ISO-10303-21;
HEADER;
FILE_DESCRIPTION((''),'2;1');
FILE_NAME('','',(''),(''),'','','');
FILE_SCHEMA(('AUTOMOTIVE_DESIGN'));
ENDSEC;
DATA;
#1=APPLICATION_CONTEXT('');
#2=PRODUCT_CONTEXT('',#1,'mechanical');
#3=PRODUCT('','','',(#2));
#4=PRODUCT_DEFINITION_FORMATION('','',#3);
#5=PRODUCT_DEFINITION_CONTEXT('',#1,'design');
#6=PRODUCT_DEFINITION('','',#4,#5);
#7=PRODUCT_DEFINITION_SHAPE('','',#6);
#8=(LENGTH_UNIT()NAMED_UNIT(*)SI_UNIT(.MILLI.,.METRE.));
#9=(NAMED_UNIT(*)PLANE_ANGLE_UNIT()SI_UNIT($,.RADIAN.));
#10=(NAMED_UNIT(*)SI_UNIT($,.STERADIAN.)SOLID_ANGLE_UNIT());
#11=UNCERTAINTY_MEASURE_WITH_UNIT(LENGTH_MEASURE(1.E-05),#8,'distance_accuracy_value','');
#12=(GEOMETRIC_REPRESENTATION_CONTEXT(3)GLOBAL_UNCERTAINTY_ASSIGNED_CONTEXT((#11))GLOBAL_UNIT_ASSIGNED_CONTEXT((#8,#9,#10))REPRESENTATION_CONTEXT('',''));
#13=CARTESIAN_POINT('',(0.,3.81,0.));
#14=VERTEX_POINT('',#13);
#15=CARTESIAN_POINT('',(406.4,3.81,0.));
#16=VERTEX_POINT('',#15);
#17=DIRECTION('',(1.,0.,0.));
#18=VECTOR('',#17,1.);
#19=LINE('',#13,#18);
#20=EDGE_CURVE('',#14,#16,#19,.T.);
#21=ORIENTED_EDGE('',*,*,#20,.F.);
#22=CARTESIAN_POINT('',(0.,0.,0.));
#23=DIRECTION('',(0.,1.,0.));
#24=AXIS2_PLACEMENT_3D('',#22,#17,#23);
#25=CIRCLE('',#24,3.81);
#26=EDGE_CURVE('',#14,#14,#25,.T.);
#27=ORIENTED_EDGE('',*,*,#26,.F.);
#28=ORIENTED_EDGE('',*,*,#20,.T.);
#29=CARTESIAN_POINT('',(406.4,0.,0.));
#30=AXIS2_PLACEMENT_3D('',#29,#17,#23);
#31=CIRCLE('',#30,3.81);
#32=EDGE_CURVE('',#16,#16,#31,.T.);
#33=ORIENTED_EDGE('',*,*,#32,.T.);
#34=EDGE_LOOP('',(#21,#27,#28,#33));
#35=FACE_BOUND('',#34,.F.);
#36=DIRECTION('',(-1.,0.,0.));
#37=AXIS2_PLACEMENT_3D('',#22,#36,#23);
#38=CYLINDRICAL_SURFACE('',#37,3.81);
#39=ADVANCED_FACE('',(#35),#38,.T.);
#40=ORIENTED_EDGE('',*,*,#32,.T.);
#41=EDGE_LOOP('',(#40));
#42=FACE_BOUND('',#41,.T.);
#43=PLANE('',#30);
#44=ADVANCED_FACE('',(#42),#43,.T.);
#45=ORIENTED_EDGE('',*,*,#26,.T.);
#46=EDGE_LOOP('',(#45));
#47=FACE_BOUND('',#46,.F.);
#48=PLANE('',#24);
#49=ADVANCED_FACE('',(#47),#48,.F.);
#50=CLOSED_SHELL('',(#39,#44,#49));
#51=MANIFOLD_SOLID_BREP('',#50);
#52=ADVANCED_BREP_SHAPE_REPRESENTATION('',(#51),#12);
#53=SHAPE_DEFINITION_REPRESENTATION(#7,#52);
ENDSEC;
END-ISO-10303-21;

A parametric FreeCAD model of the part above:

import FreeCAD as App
import Part
import Sketcher

V = App.Vector
Q = App.Units.Quantity

doc = App.newDocument("Part")
body = doc.addObject("PartDesign::Body", "Body")

sketch1 = body.newObject("Sketcher::SketchObject", "Sketch")
sketch1.AttachmentSupport = (doc.getObject("YZ_Plane"), [""])
sketch1.MapMode = "FlatFace"
sketch1.addGeometry(Part.Circle(V(0, 0, 0), V(0, 0, 1), 3.8), False)
sketch1.addConstraint(Sketcher.Constraint("Coincident", 0, 3, -1, 1))
sketch1.addConstraint(Sketcher.Constraint("Diameter", 0, Q("0.3 in")))
pad1 = body.newObject("PartDesign::Pad", "Pad")
pad1.Profile = sketch1
pad1.Length = Q("16 in")

doc.recompute()
